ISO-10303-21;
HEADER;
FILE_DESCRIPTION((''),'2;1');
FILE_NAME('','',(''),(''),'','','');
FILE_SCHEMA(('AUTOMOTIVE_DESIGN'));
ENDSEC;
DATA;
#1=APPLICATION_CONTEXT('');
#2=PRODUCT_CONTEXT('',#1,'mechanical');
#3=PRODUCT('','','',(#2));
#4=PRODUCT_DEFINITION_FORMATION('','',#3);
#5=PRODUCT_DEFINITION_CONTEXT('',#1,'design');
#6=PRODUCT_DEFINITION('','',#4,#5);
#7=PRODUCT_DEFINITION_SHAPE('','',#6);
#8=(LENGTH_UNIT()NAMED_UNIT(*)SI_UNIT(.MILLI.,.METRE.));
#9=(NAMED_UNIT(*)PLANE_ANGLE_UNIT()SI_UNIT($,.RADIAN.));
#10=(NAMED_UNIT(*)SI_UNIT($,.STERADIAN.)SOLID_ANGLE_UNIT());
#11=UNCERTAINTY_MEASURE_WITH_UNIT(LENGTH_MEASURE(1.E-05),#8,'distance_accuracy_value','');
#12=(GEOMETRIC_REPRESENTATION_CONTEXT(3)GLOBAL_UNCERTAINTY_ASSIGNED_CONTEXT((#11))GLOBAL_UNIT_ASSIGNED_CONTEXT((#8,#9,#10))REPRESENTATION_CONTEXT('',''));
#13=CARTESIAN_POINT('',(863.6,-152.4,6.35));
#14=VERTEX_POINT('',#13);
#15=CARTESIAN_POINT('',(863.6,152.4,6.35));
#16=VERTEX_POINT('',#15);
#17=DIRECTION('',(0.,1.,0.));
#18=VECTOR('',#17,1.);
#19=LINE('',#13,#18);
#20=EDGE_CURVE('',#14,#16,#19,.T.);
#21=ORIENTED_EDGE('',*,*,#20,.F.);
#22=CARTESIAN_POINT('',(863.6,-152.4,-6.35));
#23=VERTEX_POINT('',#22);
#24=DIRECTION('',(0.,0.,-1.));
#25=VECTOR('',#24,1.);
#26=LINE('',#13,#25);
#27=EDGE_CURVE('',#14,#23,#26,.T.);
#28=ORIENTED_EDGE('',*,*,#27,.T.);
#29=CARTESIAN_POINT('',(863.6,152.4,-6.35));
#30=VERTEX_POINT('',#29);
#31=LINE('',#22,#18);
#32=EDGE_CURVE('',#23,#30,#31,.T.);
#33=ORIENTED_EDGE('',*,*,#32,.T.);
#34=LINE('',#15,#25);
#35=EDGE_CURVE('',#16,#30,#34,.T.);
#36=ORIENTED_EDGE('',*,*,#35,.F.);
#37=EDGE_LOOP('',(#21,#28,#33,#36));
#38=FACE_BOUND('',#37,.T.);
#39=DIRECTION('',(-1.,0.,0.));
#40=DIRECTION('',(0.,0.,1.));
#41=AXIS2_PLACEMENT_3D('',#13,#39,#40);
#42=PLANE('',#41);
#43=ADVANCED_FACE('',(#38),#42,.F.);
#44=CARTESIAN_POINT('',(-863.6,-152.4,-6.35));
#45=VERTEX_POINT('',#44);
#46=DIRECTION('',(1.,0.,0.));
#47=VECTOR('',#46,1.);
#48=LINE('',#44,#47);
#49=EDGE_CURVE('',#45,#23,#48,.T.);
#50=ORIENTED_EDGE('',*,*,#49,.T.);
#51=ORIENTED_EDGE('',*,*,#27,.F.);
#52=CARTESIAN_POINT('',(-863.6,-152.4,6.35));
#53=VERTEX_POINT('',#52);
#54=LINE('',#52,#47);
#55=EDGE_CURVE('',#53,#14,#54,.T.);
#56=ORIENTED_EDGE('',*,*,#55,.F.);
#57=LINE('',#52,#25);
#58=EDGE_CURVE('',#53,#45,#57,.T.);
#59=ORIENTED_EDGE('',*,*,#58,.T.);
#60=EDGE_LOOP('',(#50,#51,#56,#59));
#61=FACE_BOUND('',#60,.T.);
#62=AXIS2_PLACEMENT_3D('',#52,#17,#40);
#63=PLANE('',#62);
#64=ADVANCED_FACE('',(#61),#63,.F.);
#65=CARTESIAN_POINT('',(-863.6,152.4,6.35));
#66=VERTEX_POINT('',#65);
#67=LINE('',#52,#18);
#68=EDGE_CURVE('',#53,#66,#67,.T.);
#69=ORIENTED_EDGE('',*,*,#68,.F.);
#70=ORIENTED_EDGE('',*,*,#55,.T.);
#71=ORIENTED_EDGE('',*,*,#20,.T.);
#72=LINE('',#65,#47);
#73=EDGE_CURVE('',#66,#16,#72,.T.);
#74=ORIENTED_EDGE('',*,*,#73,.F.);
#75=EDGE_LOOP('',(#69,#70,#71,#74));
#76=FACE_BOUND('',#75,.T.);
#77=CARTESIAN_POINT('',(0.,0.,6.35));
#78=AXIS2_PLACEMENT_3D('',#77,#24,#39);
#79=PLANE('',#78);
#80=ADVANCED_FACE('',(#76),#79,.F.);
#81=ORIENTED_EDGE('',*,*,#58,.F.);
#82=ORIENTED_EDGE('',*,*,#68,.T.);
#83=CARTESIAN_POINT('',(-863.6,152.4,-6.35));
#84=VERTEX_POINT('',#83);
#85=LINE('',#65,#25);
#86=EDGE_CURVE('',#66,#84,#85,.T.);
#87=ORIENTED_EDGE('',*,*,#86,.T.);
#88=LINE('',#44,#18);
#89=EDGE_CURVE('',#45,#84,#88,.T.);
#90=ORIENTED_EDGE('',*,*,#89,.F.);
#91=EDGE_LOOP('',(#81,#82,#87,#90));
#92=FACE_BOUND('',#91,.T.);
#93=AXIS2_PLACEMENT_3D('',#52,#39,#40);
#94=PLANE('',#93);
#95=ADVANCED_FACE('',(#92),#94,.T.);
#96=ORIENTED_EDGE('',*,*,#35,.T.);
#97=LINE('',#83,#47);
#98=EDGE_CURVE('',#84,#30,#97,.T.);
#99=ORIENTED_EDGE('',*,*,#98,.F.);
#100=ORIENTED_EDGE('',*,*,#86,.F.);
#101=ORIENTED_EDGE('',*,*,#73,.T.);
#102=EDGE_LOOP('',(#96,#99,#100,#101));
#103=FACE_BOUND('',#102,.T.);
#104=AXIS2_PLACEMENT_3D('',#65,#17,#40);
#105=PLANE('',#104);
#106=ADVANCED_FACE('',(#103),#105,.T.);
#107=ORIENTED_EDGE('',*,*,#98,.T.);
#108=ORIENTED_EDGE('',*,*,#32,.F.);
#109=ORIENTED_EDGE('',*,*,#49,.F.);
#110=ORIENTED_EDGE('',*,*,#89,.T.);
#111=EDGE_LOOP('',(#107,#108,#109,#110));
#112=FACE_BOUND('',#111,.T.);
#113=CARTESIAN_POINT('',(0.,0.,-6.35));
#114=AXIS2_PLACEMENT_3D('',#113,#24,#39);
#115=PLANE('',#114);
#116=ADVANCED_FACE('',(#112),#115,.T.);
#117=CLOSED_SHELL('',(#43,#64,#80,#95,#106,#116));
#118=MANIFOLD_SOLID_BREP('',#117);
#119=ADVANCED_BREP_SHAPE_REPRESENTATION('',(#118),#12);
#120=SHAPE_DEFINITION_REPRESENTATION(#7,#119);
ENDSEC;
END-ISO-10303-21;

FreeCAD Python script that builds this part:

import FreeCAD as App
import Part
import Sketcher
from FreeCAD import Vector
Q = App.Units.Quantity


def add_polygon(sketch, points):
    """Adds a closed chain of lines whose ends are joined by coincident constraints."""
    first, n = sketch.GeometryCount, len(points)
    for a, b in zip(points, points[1:] + points[:1]):
        sketch.addGeometry(Part.LineSegment(App.Vector(*a, 0), App.Vector(*b, 0)), False)
    for i in range(n):
        sketch.addConstraint(Sketcher.Constraint("Coincident", first + i, 2, first + (i + 1) % n, 1))

doc = App.newDocument("Part")
body = doc.addObject("PartDesign::Body", "Body")

sketch1 = body.newObject("Sketcher::SketchObject", "Sketch")
sketch1.AttachmentSupport = (doc.getObject("XY_Plane"), [""])
sketch1.MapMode = "FlatFace"
add_polygon(sketch1, [(-863.6, 152.4), (-863.6, -152.4), (863.6, -152.4), (863.6, 152.4)])
sketch1.addConstraint([
    Sketcher.Constraint("Vertical", 0),
    Sketcher.Constraint("Horizontal", 1),
    Sketcher.Constraint("Vertical", 2),
    Sketcher.Constraint("Horizontal", 3),
    Sketcher.Constraint("Symmetric", 0, 2, 2, 2, -1, 1),
    Sketcher.Constraint("DistanceX", 1, 1, 1, 2, Q("68 in")),
    Sketcher.Constraint("DistanceY", 0, 2, 0, 1, Q("12 in")),
])
pad1 = body.newObject("PartDesign::Pad", "Pad")
pad1.Profile = sketch1
pad1.Length = Q("0.5 in")
pad1.Midplane = True

doc.recompute()
